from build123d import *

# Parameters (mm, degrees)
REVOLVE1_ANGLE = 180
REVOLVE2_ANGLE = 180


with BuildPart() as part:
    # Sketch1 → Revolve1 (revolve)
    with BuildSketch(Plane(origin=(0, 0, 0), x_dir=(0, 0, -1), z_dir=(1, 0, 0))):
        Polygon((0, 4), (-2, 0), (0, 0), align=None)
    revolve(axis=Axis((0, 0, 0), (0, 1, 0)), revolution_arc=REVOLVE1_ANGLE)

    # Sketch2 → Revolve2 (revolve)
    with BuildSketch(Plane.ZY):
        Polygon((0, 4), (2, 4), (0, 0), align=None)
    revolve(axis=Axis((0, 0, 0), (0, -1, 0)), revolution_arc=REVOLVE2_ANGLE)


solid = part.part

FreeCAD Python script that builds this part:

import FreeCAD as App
import Part
import Sketcher

V = App.Vector


def add_polygon(sketch, points):
    """Adds a closed chain of lines whose ends are joined by coincident constraints."""
    first, n = sketch.GeometryCount, len(points)
    for a, b in zip(points, points[1:] + points[:1]):
        sketch.addGeometry(Part.LineSegment(App.Vector(*a, 0), App.Vector(*b, 0)), False)
    for i in range(n):
        sketch.addConstraint(Sketcher.Constraint("Coincident", first + i, 2, first + (i + 1) % n, 1))

doc = App.newDocument("Part")
body = doc.addObject("PartDesign::Body", "Body")

# Sketch on YZ plane
sketch1 = body.newObject("Sketcher::SketchObject", "Sketch")
sketch1.AttachmentSupport = (doc.getObject("YZ_Plane"), [""])
sketch1.MapMode = "FlatFace"
add_polygon(sketch1, [(4, 0), (0, 2), (0, 0)])  # lines 0-2
sketch1.addConstraint([
    Sketcher.Constraint("Vertical", 1),
    Sketcher.Constraint("Horizontal", 2),
    Sketcher.Constraint("Coincident", 1, 2, -1, 1),
    Sketcher.Constraint("DistanceX", 2, 1, 2, 2, 4.0),
    Sketcher.Constraint("DistanceY", 1, 2, 1, 1, 2.0),
])
revolution = body.newObject("PartDesign::Revolution", "Revolution")
revolution.Profile = sketch1
revolution.ReferenceAxis = (sketch1, ["H_Axis"])
revolution.Angle = 180

# Sketch on YZ plane
sketch2 = body.newObject("Sketcher::SketchObject", "Sketch001")
sketch2.AttachmentSupport = (doc.getObject("YZ_Plane"), [""])
sketch2.MapMode = "FlatFace"
add_polygon(sketch2, [(4, 2), (4, 0), (0, 0)])  # lines 0-2
sketch2.addConstraint([
    Sketcher.Constraint("Vertical", 0),
    Sketcher.Constraint("Horizontal", 1),
    Sketcher.Constraint("Coincident", 1, 2, -1, 1),
    Sketcher.Constraint("DistanceX", 1, 2, 1, 1, 4.0),
    Sketcher.Constraint("DistanceY", 0, 2, 0, 1, 2.0),
])
revolution2 = body.newObject("PartDesign::Revolution", "Revolution001")
revolution2.Profile = sketch2
revolution2.ReferenceAxis = (sketch2, ["H_Axis"])
revolution2.Angle = 180
revolution2.Reversed = True

doc.recompute()
